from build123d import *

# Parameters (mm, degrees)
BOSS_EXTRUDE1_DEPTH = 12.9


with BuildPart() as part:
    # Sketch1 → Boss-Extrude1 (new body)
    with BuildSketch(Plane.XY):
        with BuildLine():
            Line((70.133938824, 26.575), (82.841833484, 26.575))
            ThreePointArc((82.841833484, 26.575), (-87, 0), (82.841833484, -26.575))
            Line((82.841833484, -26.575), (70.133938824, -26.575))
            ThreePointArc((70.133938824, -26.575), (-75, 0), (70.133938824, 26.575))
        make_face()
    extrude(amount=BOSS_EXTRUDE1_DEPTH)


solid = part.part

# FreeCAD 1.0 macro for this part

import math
import FreeCAD as App
import Part
import Sketcher
Q = App.Units.Quantity

doc = App.newDocument("Part")
params = doc.addObject("Spreadsheet::Sheet", "Params")
for row, (alias, value) in enumerate([
    ("sketch1_radius", "87 mm"),
    ("sketch1_radius2", "75 mm"),
    ("pad1_length", "12.9 mm"),
], start=1):
    params.set(f"A{row}", alias)
    params.set(f"B{row}", "=" + value)
    params.setAlias(f"B{row}", alias)

body = doc.addObject("PartDesign::Body", "Body")

# Sketch on XY plane
sketch1 = body.newObject("Sketcher::SketchObject", "Sketch")
sketch1.AttachmentSupport = (doc.getObject("XY_Plane"), [""])
sketch1.MapMode = "FlatFace"
sketch1.addGeometry([
    Part.LineSegment(App.Vector(70, 27, 0), App.Vector(83, 27, 0)),
    Part.ArcOfCircle(Part.Circle(App.Vector(0, 0, 0), App.Vector(0, 0, 1), 87), math.radians(18), math.radians(342)),
    Part.LineSegment(App.Vector(83, -27, 0), App.Vector(70, -27, 0)),
    Part.ArcOfCircle(Part.Circle(App.Vector(0, 0, 0), App.Vector(0, 0, 1), 75), math.radians(21), math.radians(339)),
], False)
sketch1.addConstraint([
    Sketcher.Constraint("Coincident", 0, 2, 1, 1),
    Sketcher.Constraint("Coincident", 1, 2, 2, 1),
    Sketcher.Constraint("Coincident", 2, 2, 3, 2),
    Sketcher.Constraint("Coincident", 3, 1, 0, 1),
    Sketcher.Constraint("Horizontal", 0),
    Sketcher.Constraint("Horizontal", 2),
    Sketcher.Constraint("Coincident", 1, 3, -1, 1),
    Sketcher.Constraint("Coincident", 3, 3, -1, 1),
    Sketcher.Constraint("Vertical", 0, 2, 1, 2),
    Sketcher.Constraint("Radius", 1, Q("87 mm")),
    Sketcher.Constraint("Radius", 3, Q("75 mm")),
    Sketcher.Constraint("DistanceY", 1, 2, 0, 2, Q("53.15 mm")),
])
sketch1.setExpression("Constraints[9]", "Params.sketch1_radius")
sketch1.setExpression("Constraints[10]", "Params.sketch1_radius2")
pad1 = body.newObject("PartDesign::Pad", "Pad")
pad1.Profile = sketch1
pad1.setExpression("Length", "Params.pad1_length")

doc.recompute()
